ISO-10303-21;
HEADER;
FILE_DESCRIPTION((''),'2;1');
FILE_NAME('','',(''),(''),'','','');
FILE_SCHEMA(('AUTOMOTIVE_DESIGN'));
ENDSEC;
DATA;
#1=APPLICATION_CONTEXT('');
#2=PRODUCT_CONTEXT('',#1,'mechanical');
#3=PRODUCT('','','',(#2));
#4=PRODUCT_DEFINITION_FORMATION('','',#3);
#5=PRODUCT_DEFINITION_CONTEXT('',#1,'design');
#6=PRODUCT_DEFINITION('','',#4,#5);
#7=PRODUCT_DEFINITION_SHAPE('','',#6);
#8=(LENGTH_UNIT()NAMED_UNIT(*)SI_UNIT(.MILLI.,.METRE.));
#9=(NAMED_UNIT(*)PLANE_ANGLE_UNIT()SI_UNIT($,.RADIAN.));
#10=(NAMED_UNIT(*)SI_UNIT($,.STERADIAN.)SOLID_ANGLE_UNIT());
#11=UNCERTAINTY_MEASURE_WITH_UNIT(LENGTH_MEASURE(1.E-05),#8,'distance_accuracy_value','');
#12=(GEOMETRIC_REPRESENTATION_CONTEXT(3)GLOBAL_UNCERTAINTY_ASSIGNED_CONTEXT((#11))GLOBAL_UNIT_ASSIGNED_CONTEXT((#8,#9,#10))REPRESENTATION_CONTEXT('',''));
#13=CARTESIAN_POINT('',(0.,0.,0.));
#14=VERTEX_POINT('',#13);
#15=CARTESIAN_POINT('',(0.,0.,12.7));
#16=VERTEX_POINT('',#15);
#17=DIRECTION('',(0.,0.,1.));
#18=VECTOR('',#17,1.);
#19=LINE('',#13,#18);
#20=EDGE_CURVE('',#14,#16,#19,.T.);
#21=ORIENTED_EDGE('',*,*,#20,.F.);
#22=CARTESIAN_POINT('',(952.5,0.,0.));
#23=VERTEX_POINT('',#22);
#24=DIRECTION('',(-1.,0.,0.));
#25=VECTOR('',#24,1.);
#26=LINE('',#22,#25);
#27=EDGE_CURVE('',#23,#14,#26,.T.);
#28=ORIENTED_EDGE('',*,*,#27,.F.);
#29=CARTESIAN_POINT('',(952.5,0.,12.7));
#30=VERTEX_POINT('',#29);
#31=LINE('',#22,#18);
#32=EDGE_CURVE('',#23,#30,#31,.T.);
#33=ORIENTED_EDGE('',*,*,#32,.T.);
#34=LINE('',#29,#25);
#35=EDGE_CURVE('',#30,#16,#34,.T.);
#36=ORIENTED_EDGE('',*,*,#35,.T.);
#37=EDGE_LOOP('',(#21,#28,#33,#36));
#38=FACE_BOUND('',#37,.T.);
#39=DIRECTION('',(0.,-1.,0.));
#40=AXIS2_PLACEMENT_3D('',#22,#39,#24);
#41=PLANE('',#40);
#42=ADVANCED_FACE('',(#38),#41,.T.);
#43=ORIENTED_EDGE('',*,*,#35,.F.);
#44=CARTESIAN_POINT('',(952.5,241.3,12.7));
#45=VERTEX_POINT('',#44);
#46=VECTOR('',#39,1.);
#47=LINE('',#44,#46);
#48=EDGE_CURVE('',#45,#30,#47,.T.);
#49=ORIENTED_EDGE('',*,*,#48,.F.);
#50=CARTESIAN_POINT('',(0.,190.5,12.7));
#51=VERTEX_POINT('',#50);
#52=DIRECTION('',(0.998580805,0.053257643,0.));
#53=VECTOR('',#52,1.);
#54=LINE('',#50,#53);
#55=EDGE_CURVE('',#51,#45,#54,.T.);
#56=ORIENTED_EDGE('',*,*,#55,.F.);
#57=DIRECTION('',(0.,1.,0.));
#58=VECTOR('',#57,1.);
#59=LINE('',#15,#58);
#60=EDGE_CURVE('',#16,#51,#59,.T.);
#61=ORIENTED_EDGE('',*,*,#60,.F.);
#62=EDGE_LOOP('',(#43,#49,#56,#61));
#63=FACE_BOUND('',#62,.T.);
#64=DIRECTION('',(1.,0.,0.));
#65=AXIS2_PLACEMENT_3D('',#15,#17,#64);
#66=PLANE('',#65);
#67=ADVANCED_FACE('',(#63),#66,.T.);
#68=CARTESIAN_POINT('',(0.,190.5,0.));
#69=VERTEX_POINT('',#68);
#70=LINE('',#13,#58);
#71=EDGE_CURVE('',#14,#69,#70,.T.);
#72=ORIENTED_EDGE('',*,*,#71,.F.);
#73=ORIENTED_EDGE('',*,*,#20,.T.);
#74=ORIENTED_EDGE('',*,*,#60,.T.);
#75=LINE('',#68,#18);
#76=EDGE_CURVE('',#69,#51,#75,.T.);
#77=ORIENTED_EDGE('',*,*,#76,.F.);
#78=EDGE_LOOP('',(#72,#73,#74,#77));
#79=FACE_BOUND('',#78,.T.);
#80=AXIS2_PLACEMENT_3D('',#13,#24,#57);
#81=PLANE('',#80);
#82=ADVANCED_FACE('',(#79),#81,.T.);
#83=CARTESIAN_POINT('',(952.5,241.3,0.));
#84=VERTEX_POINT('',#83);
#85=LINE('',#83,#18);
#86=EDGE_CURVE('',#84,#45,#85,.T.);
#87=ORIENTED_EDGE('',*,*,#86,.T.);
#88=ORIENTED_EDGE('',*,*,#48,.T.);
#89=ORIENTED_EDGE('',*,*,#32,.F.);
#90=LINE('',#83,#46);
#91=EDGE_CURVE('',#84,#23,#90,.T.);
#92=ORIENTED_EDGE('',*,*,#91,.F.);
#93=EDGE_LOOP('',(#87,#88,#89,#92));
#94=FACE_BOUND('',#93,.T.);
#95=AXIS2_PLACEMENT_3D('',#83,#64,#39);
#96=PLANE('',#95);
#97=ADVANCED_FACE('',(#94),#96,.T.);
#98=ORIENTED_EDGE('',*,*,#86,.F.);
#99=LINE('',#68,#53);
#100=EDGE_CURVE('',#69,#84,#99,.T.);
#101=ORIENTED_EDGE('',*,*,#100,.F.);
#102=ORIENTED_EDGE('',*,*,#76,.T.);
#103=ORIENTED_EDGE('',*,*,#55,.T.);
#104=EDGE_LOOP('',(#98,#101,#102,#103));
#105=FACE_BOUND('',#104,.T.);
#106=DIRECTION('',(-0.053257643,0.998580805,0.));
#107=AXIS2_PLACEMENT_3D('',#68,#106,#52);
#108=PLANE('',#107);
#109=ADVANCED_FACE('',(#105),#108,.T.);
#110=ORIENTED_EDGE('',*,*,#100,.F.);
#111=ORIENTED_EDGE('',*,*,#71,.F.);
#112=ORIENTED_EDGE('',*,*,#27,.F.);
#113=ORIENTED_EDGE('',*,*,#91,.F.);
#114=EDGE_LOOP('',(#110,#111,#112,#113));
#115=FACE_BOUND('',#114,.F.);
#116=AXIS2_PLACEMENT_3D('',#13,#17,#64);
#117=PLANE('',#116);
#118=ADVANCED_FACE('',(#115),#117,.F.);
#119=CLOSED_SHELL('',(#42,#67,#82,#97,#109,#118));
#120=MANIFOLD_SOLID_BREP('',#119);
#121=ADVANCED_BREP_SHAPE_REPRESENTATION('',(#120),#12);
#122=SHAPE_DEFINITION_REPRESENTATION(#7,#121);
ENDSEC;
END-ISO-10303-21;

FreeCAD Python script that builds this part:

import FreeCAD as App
import Part
import Sketcher
Q = App.Units.Quantity

doc = App.newDocument("Part")
body = doc.addObject("PartDesign::Body", "Body")

sketch1 = doc.addObject("Sketcher::SketchObject", "Sketch")
body.addObject(sketch1)
sketch1.AttachmentSupport = (doc.XY_Plane, [""])
sketch1.MapMode = "FlatFace"
sketch1.addGeometry(Part.LineSegment(App.Vector(0, 190.5, 0), App.Vector(0, 0, 0)), False)
sketch1.addGeometry(Part.LineSegment(App.Vector(0, 0, 0), App.Vector(952.5, 0, 0)), False)
sketch1.addGeometry(Part.LineSegment(App.Vector(952.5, 0, 0), App.Vector(952.5, 241.3, 0)), False)
sketch1.addGeometry(Part.LineSegment(App.Vector(952.5, 241.3, 0), App.Vector(0, 190.5, 0)), False)
sketch1.addConstraint(Sketcher.Constraint("Coincident", 0, 2, 1, 1))
sketch1.addConstraint(Sketcher.Constraint("Coincident", 1, 2, 2, 1))
sketch1.addConstraint(Sketcher.Constraint("Coincident", 2, 2, 3, 1))
sketch1.addConstraint(Sketcher.Constraint("Coincident", 3, 2, 0, 1))
sketch1.addConstraint(Sketcher.Constraint("Vertical", 0))
sketch1.addConstraint(Sketcher.Constraint("Horizontal", 1))
sketch1.addConstraint(Sketcher.Constraint("Vertical", 2))
sketch1.addConstraint(Sketcher.Constraint("Coincident", 0, 2, -1, 1))
sketch1.addConstraint(Sketcher.Constraint("DistanceX", 1, 1, 1, 2, Q("37.5 in")))
sketch1.addConstraint(Sketcher.Constraint("DistanceY", 0, 2, 0, 1, Q("7.5 in")))
sketch1.addConstraint(Sketcher.Constraint("DistanceY", 2, 1, 2, 2, Q("9.5 in")))
pad1 = doc.addObject("PartDesign::Pad", "Pad")
body.addObject(pad1)
pad1.Profile = sketch1
pad1.Length = Q("0.5 in")

doc.recompute()
